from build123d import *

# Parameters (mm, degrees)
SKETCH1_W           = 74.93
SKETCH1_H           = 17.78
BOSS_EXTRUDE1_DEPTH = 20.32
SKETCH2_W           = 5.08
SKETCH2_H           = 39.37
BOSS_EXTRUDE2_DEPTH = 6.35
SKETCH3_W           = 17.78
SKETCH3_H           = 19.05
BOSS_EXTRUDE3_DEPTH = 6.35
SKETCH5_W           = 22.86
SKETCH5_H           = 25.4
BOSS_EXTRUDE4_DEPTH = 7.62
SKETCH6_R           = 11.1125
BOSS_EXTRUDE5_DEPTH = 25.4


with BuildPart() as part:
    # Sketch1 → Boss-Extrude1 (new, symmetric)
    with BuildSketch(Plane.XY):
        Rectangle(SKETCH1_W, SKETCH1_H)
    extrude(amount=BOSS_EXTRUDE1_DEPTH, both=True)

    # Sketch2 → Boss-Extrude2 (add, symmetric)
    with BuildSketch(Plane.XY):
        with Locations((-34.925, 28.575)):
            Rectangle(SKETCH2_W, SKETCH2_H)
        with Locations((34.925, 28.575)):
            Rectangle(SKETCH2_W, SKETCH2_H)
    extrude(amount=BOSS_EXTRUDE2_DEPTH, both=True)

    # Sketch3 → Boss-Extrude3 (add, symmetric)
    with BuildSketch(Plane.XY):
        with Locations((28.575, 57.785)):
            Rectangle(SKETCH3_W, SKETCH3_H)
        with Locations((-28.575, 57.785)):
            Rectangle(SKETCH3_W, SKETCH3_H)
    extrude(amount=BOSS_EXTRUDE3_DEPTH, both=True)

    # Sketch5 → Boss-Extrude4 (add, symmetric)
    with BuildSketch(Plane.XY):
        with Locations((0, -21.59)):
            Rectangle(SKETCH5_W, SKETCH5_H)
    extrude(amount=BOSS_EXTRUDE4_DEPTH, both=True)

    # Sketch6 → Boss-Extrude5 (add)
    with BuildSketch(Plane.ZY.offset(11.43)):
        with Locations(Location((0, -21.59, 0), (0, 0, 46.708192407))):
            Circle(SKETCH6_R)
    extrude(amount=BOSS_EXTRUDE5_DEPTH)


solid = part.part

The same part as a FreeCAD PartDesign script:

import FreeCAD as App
import Part
import Sketcher
Q = App.Units.Quantity


def add_polygon(sketch, points):
    """Adds a closed chain of lines whose ends are joined by coincident constraints."""
    first, n = sketch.GeometryCount, len(points)
    for a, b in zip(points, points[1:] + points[:1]):
        sketch.addGeometry(Part.LineSegment(App.Vector(*a, 0), App.Vector(*b, 0)), False)
    for i in range(n):
        sketch.addConstraint(Sketcher.Constraint("Coincident", first + i, 2, first + (i + 1) % n, 1))

doc = App.newDocument("Part")
body = doc.addObject("PartDesign::Body", "Body")

# Sketch on XY plane
sketch1 = doc.addObject("Sketcher::SketchObject", "Sketch")
body.addObject(sketch1)
sketch1.AttachmentSupport = (doc.XY_Plane, [""])
sketch1.MapMode = "FlatFace"
add_polygon(sketch1, [(-37, 9), (-37, -9), (37, -9), (37, 9)])  # lines 0-3
sketch1.addConstraint(Sketcher.Constraint("Vertical", 0))
sketch1.addConstraint(Sketcher.Constraint("Horizontal", 1))
sketch1.addConstraint(Sketcher.Constraint("Vertical", 2))
sketch1.addConstraint(Sketcher.Constraint("Horizontal", 3))
sketch1.addConstraint(Sketcher.Constraint("Symmetric", 0, 2, 2, 2, -1, 1))
sketch1.addConstraint(Sketcher.Constraint("DistanceY", 0, 2, 0, 1, Q("0.7 in")))
sketch1.addConstraint(Sketcher.Constraint("DistanceX", 1, 1, 1, 2, Q("2.95 in")))
pad1 = doc.addObject("PartDesign::Pad", "Pad")
body.addObject(pad1)
pad1.Profile = sketch1
pad1.Length = Q("1.6 in")
pad1.Midplane = True

# Sketch on XY plane
sketch2 = doc.addObject("Sketcher::SketchObject", "Sketch001")
body.addObject(sketch2)
sketch2.AttachmentSupport = (doc.XY_Plane, [""])
sketch2.MapMode = "FlatFace"
add_polygon(sketch2, [(-37, 48), (-37, 9), (-32, 9), (-32, 48)])  # lines 0-3
add_polygon(sketch2, [(32, 48), (32, 9), (37, 9), (37, 48)])  # lines 4-7
sketch2.addConstraint(Sketcher.Constraint("Vertical", 0))
sketch2.addConstraint(Sketcher.Constraint("Horizontal", 1))
sketch2.addConstraint(Sketcher.Constraint("Vertical", 2))
sketch2.addConstraint(Sketcher.Constraint("Horizontal", 3))
sketch2.addConstraint(Sketcher.Constraint("Vertical", 4))
sketch2.addConstraint(Sketcher.Constraint("Horizontal", 5))
sketch2.addConstraint(Sketcher.Constraint("Vertical", 6))
sketch2.addConstraint(Sketcher.Constraint("Horizontal", 7))
sketch2.addConstraint(Sketcher.Constraint("Symmetric", 1, 2, 4, 2, -2))
sketch2.addConstraint(Sketcher.Constraint("Symmetric", 3, 2, 6, 2, -2))
sketch2.addConstraint(Sketcher.Constraint("DistanceX", 1, 1, 1, 2, Q("0.2 in")))
sketch2.addConstraint(Sketcher.Constraint("DistanceY", 0, 2, 0, 1, Q("1.55 in")))
sketch2.addConstraint(Sketcher.Constraint("DistanceY", -1, 1, 2, 2, Q("1.9 in")))
sketch2.addConstraint(Sketcher.Constraint("DistanceX", 1, 2, 4, 2, Q("2.55 in")))
pad2 = doc.addObject("PartDesign::Pad", "Pad001")
body.addObject(pad2)
pad2.Profile = sketch2
pad2.Length = Q("0.5 in")
pad2.Midplane = True

# Sketch on XY plane
sketch3 = doc.addObject("Sketcher::SketchObject", "Sketch002")
body.addObject(sketch3)
sketch3.AttachmentSupport = (doc.XY_Plane, [""])
sketch3.MapMode = "FlatFace"
add_polygon(sketch3, [(20, 67), (20, 48), (37, 48), (37, 67)])  # lines 0-3
add_polygon(sketch3, [(-37, 67), (-37, 48), (-20, 48), (-20, 67)])  # lines 4-7
sketch3.addConstraint(Sketcher.Constraint("Vertical", 0))
sketch3.addConstraint(Sketcher.Constraint("Horizontal", 1))
sketch3.addConstraint(Sketcher.Constraint("Vertical", 2))
sketch3.addConstraint(Sketcher.Constraint("Horizontal", 3))
sketch3.addConstraint(Sketcher.Constraint("Vertical", 4))
sketch3.addConstraint(Sketcher.Constraint("Horizontal", 5))
sketch3.addConstraint(Sketcher.Constraint("Vertical", 6))
sketch3.addConstraint(Sketcher.Constraint("Horizontal", 7))
sketch3.addConstraint(Sketcher.Constraint("Symmetric", 1, 2, 4, 2, -2))
sketch3.addConstraint(Sketcher.Constraint("Symmetric", 3, 2, 6, 2, -2))
sketch3.addConstraint(Sketcher.Constraint("DistanceX", 1, 1, 1, 2, Q("0.7 in")))
sketch3.addConstraint(Sketcher.Constraint("DistanceY", 0, 2, 0, 1, Q("0.75 in")))
sketch3.addConstraint(Sketcher.Constraint("DistanceY", -1, 1, 0, 2, Q("1.9 in")))
sketch3.addConstraint(Sketcher.Constraint("DistanceX", 4, 2, 0, 2, Q("2.25 in")))
pad3 = doc.addObject("PartDesign::Pad", "Pad002")
body.addObject(pad3)
pad3.Profile = sketch3
pad3.Length = Q("0.5 in")
pad3.Midplane = True

# Sketch on XY plane
sketch4 = doc.addObject("Sketcher::SketchObject", "Sketch003")
body.addObject(sketch4)
sketch4.AttachmentSupport = (doc.XY_Plane, [""])
sketch4.MapMode = "FlatFace"
add_polygon(sketch4, [(-11, -9), (-11, -34), (11, -34), (11, -9)])  # lines 0-3
sketch4.addConstraint(Sketcher.Constraint("Vertical", 0))
sketch4.addConstraint(Sketcher.Constraint("Horizontal", 1))
sketch4.addConstraint(Sketcher.Constraint("Vertical", 2))
sketch4.addConstraint(Sketcher.Constraint("Horizontal", 3))
sketch4.addConstraint(Sketcher.Constraint("DistanceY", 0, 2, 0, 1, Q("1 in")))
sketch4.addConstraint(Sketcher.Constraint("DistanceX", 1, 1, 1, 2, Q("0.9 in")))
sketch4.addConstraint(Sketcher.Constraint("DistanceX", 0, 2, -1, 1, Q("0.45 in")))
sketch4.addConstraint(Sketcher.Constraint("DistanceY", 0, 2, -1, 1, Q("1.35 in")))
pad4 = doc.addObject("PartDesign::Pad", "Pad003")
body.addObject(pad4)
pad4.Profile = sketch4
pad4.Length = Q("0.6 in")
pad4.Midplane = True

# Sketch on YZ plane
sketch5 = doc.addObject("Sketcher::SketchObject", "Sketch004")
body.addObject(sketch5)
sketch5.AttachmentSupport = (doc.YZ_Plane, [""])
sketch5.MapMode = "FlatFace"
sketch5.AttachmentOffset = App.Placement(App.Vector(0, 0, -0.45 * 25.4), App.Rotation())
sketch5.addGeometry(Part.Circle(App.Vector(-22, 0, 0), App.Vector(0, 0, 1), 11), False)
sketch5.addConstraint(Sketcher.Constraint("PointOnObject", 0, 3, -1))
sketch5.addConstraint(Sketcher.Constraint("Diameter", 0, Q("0.875 in")))
sketch5.addConstraint(Sketcher.Constraint("DistanceX", 0, 3, -1, 1, Q("0.85 in")))
pad5 = doc.addObject("PartDesign::Pad", "Pad004")
body.addObject(pad5)
pad5.Profile = sketch5
pad5.Length = Q("1 in")
pad5.Reversed = True

doc.recompute()
